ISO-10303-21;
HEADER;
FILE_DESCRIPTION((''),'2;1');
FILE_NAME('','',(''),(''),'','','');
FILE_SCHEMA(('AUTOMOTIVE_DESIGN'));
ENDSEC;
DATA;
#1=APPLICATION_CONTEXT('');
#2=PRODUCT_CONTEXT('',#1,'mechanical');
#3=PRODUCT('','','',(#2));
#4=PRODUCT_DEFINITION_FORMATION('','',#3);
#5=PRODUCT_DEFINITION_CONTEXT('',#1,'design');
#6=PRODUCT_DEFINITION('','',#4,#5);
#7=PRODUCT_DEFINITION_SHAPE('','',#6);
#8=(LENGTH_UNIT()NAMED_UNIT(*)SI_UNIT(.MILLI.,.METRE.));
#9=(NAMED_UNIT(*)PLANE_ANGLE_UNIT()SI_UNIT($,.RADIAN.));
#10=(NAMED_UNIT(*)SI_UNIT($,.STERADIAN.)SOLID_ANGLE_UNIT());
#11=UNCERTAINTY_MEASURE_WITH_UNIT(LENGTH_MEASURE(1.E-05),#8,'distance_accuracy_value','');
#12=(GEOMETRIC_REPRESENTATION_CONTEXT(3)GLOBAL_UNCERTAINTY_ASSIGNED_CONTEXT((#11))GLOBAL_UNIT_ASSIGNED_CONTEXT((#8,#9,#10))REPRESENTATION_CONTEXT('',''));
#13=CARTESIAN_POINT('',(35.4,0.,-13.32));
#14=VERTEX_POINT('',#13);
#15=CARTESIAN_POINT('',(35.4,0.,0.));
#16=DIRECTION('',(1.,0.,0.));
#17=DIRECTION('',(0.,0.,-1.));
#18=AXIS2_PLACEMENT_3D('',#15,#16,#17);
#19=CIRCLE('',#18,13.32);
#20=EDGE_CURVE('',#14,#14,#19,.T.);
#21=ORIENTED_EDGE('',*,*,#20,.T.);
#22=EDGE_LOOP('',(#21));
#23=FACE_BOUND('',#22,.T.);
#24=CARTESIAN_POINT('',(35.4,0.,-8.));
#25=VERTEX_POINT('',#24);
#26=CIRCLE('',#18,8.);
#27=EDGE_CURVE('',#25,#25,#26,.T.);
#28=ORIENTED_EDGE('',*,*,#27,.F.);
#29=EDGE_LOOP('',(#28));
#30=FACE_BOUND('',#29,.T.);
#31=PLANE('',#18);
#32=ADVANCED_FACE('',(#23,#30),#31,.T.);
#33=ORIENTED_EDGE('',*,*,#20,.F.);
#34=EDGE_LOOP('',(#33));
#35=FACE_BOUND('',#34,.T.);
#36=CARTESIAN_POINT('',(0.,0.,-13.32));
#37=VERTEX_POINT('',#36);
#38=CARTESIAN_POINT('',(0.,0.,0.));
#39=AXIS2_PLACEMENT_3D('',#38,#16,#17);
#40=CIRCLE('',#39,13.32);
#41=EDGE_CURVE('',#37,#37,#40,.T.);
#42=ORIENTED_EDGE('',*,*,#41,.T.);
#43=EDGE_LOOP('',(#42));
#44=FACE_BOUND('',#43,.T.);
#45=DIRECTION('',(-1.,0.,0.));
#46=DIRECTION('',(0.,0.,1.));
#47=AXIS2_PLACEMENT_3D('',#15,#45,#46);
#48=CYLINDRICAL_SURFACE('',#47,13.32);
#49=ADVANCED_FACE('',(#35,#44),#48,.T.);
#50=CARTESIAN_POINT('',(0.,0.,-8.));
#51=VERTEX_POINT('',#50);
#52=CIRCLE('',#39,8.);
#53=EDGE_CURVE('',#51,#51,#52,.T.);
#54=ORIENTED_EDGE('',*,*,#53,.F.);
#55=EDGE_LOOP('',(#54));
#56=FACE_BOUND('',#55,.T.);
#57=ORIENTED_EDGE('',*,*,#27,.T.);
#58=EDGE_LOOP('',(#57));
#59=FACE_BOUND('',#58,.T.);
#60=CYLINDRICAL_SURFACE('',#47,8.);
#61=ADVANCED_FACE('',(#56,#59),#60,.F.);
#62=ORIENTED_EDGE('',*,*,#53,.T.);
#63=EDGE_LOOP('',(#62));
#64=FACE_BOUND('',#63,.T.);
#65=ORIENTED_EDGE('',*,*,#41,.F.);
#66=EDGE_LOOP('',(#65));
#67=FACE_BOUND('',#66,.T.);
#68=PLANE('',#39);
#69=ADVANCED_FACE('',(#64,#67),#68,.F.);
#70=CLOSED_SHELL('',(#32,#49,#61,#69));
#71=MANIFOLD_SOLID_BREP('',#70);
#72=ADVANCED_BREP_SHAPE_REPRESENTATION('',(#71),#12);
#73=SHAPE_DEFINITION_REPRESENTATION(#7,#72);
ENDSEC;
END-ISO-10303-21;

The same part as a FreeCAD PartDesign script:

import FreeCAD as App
import Part
import Sketcher
from FreeCAD import Vector

doc = App.newDocument("Part")
body = doc.addObject("PartDesign::Body", "Body")

# Sketch on YZ plane
sketch1 = body.newObject("Sketcher::SketchObject", "Sketch")
sketch1.AttachmentSupport = (doc.getObject("YZ_Plane"), [""])
sketch1.MapMode = "FlatFace"
sketch1.addGeometry(Part.Circle(Vector(0, 0, 0), Vector(0, 0, 1), 13), False)
sketch1.addGeometry(Part.Circle(Vector(0, 0, 0), Vector(0, 0, 1), 8), False)
sketch1.addConstraint(Sketcher.Constraint("Coincident", 0, 3, -1, 1))
sketch1.addConstraint(Sketcher.Constraint("Coincident", 1, 3, -1, 1))
sketch1.addConstraint(Sketcher.Constraint("Diameter", 1, 16.0))
sketch1.addConstraint(Sketcher.Constraint("Diameter", 0, 26.64))
pad1 = body.newObject("PartDesign::Pad", "Pad")
pad1.Profile = sketch1
pad1.Length = 35.4

doc.recompute()
